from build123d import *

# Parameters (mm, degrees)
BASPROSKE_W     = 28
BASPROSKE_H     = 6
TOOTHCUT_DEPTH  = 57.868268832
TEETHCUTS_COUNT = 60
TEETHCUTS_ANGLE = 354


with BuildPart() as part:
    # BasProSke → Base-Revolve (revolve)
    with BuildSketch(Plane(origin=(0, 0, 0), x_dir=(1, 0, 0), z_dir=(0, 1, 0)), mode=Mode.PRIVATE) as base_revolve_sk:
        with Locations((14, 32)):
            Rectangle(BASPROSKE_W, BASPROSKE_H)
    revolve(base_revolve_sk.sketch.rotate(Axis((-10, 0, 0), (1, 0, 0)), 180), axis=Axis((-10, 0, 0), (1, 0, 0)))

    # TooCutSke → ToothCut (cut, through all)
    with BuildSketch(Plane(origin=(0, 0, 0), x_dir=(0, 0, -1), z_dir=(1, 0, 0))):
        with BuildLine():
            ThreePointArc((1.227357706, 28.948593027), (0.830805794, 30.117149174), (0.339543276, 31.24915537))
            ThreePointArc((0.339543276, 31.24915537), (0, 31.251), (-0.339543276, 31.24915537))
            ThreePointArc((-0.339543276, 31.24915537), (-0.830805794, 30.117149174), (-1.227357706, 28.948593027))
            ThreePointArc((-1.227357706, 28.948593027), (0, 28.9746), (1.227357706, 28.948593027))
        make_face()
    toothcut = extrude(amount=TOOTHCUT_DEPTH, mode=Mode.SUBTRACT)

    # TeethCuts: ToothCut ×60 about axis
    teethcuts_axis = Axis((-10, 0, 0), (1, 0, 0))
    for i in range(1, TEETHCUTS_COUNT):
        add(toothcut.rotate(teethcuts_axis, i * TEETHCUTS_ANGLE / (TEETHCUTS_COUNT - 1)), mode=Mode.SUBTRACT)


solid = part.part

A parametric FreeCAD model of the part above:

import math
import FreeCAD as App
import Part
import Sketcher

doc = App.newDocument("Part")
body = doc.addObject("PartDesign::Body", "Body")

# Sketch on XZ plane
sketch1 = body.newObject("Sketcher::SketchObject", "Sketch")
sketch1.AttachmentSupport = (doc.getObject("XZ_Plane"), [""])
sketch1.MapMode = "FlatFace"
sketch1.addGeometry(Part.LineSegment(App.Vector(0, -35, 0), App.Vector(0, -29, 0)), False)
sketch1.addGeometry(Part.LineSegment(App.Vector(0, -29, 0), App.Vector(28, -29, 0)), False)
sketch1.addGeometry(Part.LineSegment(App.Vector(28, -29, 0), App.Vector(28, -35, 0)), False)
sketch1.addGeometry(Part.LineSegment(App.Vector(28, -35, 0), App.Vector(0, -35, 0)), False)
sketch1.addConstraint(Sketcher.Constraint("Coincident", 0, 2, 1, 1))
sketch1.addConstraint(Sketcher.Constraint("Coincident", 1, 2, 2, 1))
sketch1.addConstraint(Sketcher.Constraint("Coincident", 2, 2, 3, 1))
sketch1.addConstraint(Sketcher.Constraint("Coincident", 3, 2, 0, 1))
sketch1.addConstraint(Sketcher.Constraint("Vertical", 0))
sketch1.addConstraint(Sketcher.Constraint("Horizontal", 1))
sketch1.addConstraint(Sketcher.Constraint("Vertical", 2))
sketch1.addConstraint(Sketcher.Constraint("Horizontal", 3))
sketch1.addConstraint(Sketcher.Constraint("PointOnObject", 0, 2, -2))
sketch1.addConstraint(Sketcher.Constraint("DistanceX", 1, 1, 1, 2, 28.0))
sketch1.addConstraint(Sketcher.Constraint("DistanceY", 0, 1, 0, 2, 6.0))
sketch1.addConstraint(Sketcher.Constraint("DistanceY", 0, 2, -1, 1, 29.0))
revolution = body.newObject("PartDesign::Revolution", "Revolution")
revolution.Profile = sketch1
revolution.ReferenceAxis = (sketch1, ["H_Axis"])
revolution.Angle = 360

# Sketch on YZ plane
sketch2 = body.newObject("Sketcher::SketchObject", "Sketch001")
sketch2.AttachmentSupport = (doc.getObject("YZ_Plane"), [""])
sketch2.MapMode = "FlatFace"
sketch2.addGeometry(Part.ArcOfCircle(Part.Circle(App.Vector(24.7, 13.2, 0), App.Vector(0, 0, 1), 15), math.radians(-73.61), math.radians(-64.18)), False)
sketch2.addGeometry(Part.ArcOfCircle(Part.Circle(App.Vector(0, 0, 0), App.Vector(0, 0, 1), 31.3), math.radians(-0.62), math.radians(0.62)), False)
sketch2.addGeometry(Part.ArcOfCircle(Part.Circle(App.Vector(24.7, -13.2, 0), App.Vector(0, 0, 1), 15), math.radians(64.18), math.radians(73.61)), False)
sketch2.addGeometry(Part.ArcOfCircle(Part.Circle(App.Vector(0, 0, 0), App.Vector(0, 0, 1), 29), math.radians(-2.43), math.radians(2.43)), False)
sketch2.addConstraint(Sketcher.Constraint("Coincident", 0, 2, 1, 1))
sketch2.addConstraint(Sketcher.Constraint("Coincident", 1, 2, 2, 1))
sketch2.addConstraint(Sketcher.Constraint("Coincident", 2, 2, 3, 2))
sketch2.addConstraint(Sketcher.Constraint("Coincident", 3, 1, 0, 1))
sketch2.addConstraint(Sketcher.Constraint("Coincident", 1, 3, -1, 1))
sketch2.addConstraint(Sketcher.Constraint("Coincident", 3, 3, -1, 1))
sketch2.addConstraint(Sketcher.Constraint("Equal", 0, 2))
sketch2.addConstraint(Sketcher.Constraint("Symmetric", 0, 3, 2, 3, -1))
sketch2.addConstraint(Sketcher.Constraint("Radius", 0, 15.0))
sketch2.addConstraint(Sketcher.Constraint("Radius", 3, 28.9746))
sketch2.addConstraint(Sketcher.Constraint("Radius", 1, 31.250993))
sketch2.addConstraint(Sketcher.Constraint("DistanceY", 0, 2, 2, 2, 1.566901))
sketch2.addConstraint(Sketcher.Constraint("DistanceX", -1, 1, 0, 3, 24.716661))
pocket1 = body.newObject("PartDesign::Pocket", "Pocket")
pocket1.Profile = sketch2
pocket1.Type = "ThroughAll"
pocket1.Reversed = True
doc.recompute()

polarpattern = body.newObject("PartDesign::PolarPattern", "PolarPattern")
polarpattern.Originals = [pocket1]
polarpattern.Axis = (doc.getObject("X_Axis"), [""])
polarpattern.Angle = 360
polarpattern.Occurrences = 60
body.Tip = polarpattern

doc.recompute()
